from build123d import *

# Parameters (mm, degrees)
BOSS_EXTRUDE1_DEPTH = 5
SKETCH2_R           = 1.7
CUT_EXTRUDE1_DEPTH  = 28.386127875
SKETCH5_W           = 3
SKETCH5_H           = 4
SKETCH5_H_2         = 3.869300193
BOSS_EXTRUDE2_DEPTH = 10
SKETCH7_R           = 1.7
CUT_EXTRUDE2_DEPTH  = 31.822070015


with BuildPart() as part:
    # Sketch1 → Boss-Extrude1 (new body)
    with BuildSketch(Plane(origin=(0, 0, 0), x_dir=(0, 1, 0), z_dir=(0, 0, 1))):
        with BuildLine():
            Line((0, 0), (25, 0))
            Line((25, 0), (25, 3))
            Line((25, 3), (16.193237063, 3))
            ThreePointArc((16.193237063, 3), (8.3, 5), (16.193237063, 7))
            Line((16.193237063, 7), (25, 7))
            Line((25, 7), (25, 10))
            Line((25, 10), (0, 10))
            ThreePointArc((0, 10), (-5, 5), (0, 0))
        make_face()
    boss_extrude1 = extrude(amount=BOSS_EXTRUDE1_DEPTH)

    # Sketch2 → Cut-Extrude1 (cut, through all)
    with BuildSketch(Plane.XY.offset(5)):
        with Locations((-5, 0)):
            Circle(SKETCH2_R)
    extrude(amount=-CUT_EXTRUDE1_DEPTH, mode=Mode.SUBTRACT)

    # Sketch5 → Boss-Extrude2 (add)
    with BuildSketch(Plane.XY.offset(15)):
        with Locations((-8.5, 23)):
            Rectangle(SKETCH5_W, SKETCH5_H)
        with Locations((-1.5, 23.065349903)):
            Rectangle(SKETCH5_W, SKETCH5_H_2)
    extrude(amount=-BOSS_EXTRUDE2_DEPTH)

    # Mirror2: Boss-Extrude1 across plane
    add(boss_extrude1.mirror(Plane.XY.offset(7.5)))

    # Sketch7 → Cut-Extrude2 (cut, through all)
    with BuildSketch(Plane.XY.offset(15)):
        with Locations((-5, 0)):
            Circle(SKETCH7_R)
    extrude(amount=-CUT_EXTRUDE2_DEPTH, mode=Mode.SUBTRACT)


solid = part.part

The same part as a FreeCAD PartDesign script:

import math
import FreeCAD as App
import Part
import Sketcher
from FreeCAD import Vector

doc = App.newDocument("Part")
params = doc.addObject("Spreadsheet::Sheet", "Params")
for row, (alias, value) in enumerate([
    ("sketch1_radius", "5 mm"),
    ("sketch1_radius2", "4.2 mm"),
    ("sketch1_width", "3 mm"),
    ("sketch1_height", "25 mm"),
    ("pad1_length", "5 mm"),
    ("sketch2_diameter", "3.4 mm"),
    ("sketch3_width", "3 mm"),
    ("sketch3_height", "4 mm"),
    ("pad2_length", "10 mm"),
    ("sketch4_diameter", "3.4 mm"),
], start=1):
    params.set(f"A{row}", alias)
    params.set(f"B{row}", "=" + value)
    params.setAlias(f"B{row}", alias)

body = doc.addObject("PartDesign::Body", "Body")

sketch1 = body.newObject("Sketcher::SketchObject", "Sketch")
sketch1.AttachmentSupport = (doc.getObject("XY_Plane"), [""])
sketch1.MapMode = "FlatFace"
sketch1.addGeometry([
    Part.LineSegment(Vector(0, 0, 0), Vector(0, 25, 0)),
    Part.LineSegment(Vector(0, 25, 0), Vector(-3, 25, 0)),
    Part.LineSegment(Vector(-3, 25, 0), Vector(-3, 16.2, 0)),
    Part.ArcOfCircle(Part.Circle(Vector(-5, 12.5, 0), Vector(0, 0, 1), 4.2), math.radians(118), math.radians(422)),
    Part.LineSegment(Vector(-7, 16.2, 0), Vector(-7, 25, 0)),
    Part.LineSegment(Vector(-7, 25, 0), Vector(-10, 25, 0)),
    Part.LineSegment(Vector(-10, 25, 0), Vector(-10, 0, 0)),
    Part.ArcOfCircle(Part.Circle(Vector(-5, 0, 0), Vector(0, 0, 1), 5), math.radians(180), math.radians(360)),
], False)
sketch1.addConstraint([
    Sketcher.Constraint("Coincident", 0, 2, 1, 1),
    Sketcher.Constraint("Coincident", 1, 2, 2, 1),
    Sketcher.Constraint("Coincident", 2, 2, 3, 2),
    Sketcher.Constraint("Coincident", 3, 1, 4, 1),
    Sketcher.Constraint("Coincident", 4, 2, 5, 1),
    Sketcher.Constraint("Coincident", 5, 2, 6, 1),
    Sketcher.Constraint("Tangent", 6, 2, 7, 1),
    Sketcher.Constraint("Tangent", 7, 2, 0, 1),
    Sketcher.Constraint("Vertical", 0),
    Sketcher.Constraint("Horizontal", 1),
    Sketcher.Constraint("Vertical", 2),
    Sketcher.Constraint("Vertical", 4),
    Sketcher.Constraint("Horizontal", 5),
    Sketcher.Constraint("Vertical", 6),
    Sketcher.Constraint("Coincident", 7, 2, -1, 1),
    Sketcher.Constraint("Horizontal", 2, 2, 3, 1),
    Sketcher.Constraint("Horizontal", 1, 2, 4, 2),
    Sketcher.Constraint("Vertical", 3, 3, 7, 3),
    Sketcher.Constraint("Radius", 7, 5.0),
    Sketcher.Constraint("Radius", 3, 4.2),
    Sketcher.Constraint("DistanceX", 1, 2, 1, 1, 3.0),
    Sketcher.Constraint("DistanceY", 0, 1, 0, 2, 25.0),
    Sketcher.Constraint("DistanceY", -1, 1, 3, 3, 12.5),
])
sketch1.setExpression("Constraints[18]", "Params.sketch1_radius")
sketch1.setExpression("Constraints[19]", "Params.sketch1_radius2")
sketch1.setExpression("Constraints[20]", "Params.sketch1_width")
sketch1.setExpression("Constraints[21]", "Params.sketch1_height")
pad1 = body.newObject("PartDesign::Pad", "Pad")
pad1.Profile = sketch1
pad1.setExpression("Length", "Params.pad1_length")

sketch2 = body.newObject("Sketcher::SketchObject", "Sketch001")
sketch2.AttachmentSupport = (doc.getObject("XY_Plane"), [""])
sketch2.MapMode = "FlatFace"
sketch2.AttachmentOffset = App.Placement(Vector(0, 0, 5), App.Rotation())
sketch2.addGeometry(Part.Circle(Vector(-5, 0, 0), Vector(0, 0, 1), 1.7), False)
sketch2.addConstraint([
    Sketcher.Constraint("PointOnObject", 0, 3, -1),
    Sketcher.Constraint("Diameter", 0, 3.4),
    Sketcher.Constraint("DistanceX", 0, 3, -1, 1, 5.0),
])
sketch2.setExpression("Constraints[1]", "Params.sketch2_diameter")
pocket1 = body.newObject("PartDesign::Pocket", "Pocket")
pocket1.Profile = sketch2
pocket1.Type = "ThroughAll"

sketch3 = body.newObject("Sketcher::SketchObject", "Sketch002")
sketch3.AttachmentSupport = (doc.getObject("XY_Plane"), [""])
sketch3.MapMode = "FlatFace"
sketch3.AttachmentOffset = App.Placement(Vector(0, 0, 15), App.Rotation())
sketch3.addGeometry([
    Part.LineSegment(Vector(-10, 25, 0), Vector(-10, 21, 0)),
    Part.LineSegment(Vector(-10, 21, 0), Vector(-7, 21, 0)),
    Part.LineSegment(Vector(-7, 21, 0), Vector(-7, 25, 0)),
    Part.LineSegment(Vector(-7, 25, 0), Vector(-10, 25, 0)),
    Part.LineSegment(Vector(-3, 25, 0), Vector(-3, 21.1, 0)),
    Part.LineSegment(Vector(-3, 21.1, 0), Vector(0, 21.1, 0)),
    Part.LineSegment(Vector(0, 21.1, 0), Vector(0, 25, 0)),
    Part.LineSegment(Vector(0, 25, 0), Vector(-3, 25, 0)),
], False)
sketch3.addConstraint([
    Sketcher.Constraint("Coincident", 0, 2, 1, 1),
    Sketcher.Constraint("Coincident", 1, 2, 2, 1),
    Sketcher.Constraint("Coincident", 2, 2, 3, 1),
    Sketcher.Constraint("Coincident", 3, 2, 0, 1),
    Sketcher.Constraint("Coincident", 4, 2, 5, 1),
    Sketcher.Constraint("Coincident", 5, 2, 6, 1),
    Sketcher.Constraint("Coincident", 6, 2, 7, 1),
    Sketcher.Constraint("Coincident", 7, 2, 4, 1),
    Sketcher.Constraint("Vertical", 0),
    Sketcher.Constraint("Horizontal", 1),
    Sketcher.Constraint("Vertical", 2),
    Sketcher.Constraint("Horizontal", 3),
    Sketcher.Constraint("Vertical", 4),
    Sketcher.Constraint("Horizontal", 5),
    Sketcher.Constraint("Vertical", 6),
    Sketcher.Constraint("Horizontal", 7),
    Sketcher.Constraint("PointOnObject", 5, 2, -2),
    Sketcher.Constraint("Horizontal", 3, 2, 6, 2),
    Sketcher.Constraint("Equal", 3, 5),
    Sketcher.Constraint("DistanceX", 1, 1, 1, 2, 3.0),
    Sketcher.Constraint("DistanceY", 0, 2, 0, 1, 4.0),
    Sketcher.Constraint("DistanceX", 0, 2, -1, 1, 10.0),
    Sketcher.Constraint("DistanceY", -1, 1, 0, 2, 21.0),
    Sketcher.Constraint("DistanceY", 4, 2, 4, 1, 3.8693),
])
sketch3.setExpression("Constraints[19]", "Params.sketch3_width")
sketch3.setExpression("Constraints[20]", "Params.sketch3_height")
pad2 = body.newObject("PartDesign::Pad", "Pad001")
pad2.Profile = sketch3
pad2.setExpression("Length", "Params.pad2_length")
pad2.Reversed = True
doc.recompute()

datumplane = body.newObject("PartDesign::Plane", "DatumPlane")
datumplane.AttachmentSupport = (doc.getObject("XY_Plane"), [""])
datumplane.MapMode = "FlatFace"
datumplane.AttachmentOffset = App.Placement(Vector(0, 0, 7.5), App.Rotation())
mirrored = body.newObject("PartDesign::Mirrored", "Mirrored")
mirrored.Originals = [pad1]
mirrored.MirrorPlane = (datumplane, [""])
body.Tip = mirrored

sketch4 = body.newObject("Sketcher::SketchObject", "Sketch003")
sketch4.AttachmentSupport = (doc.getObject("XY_Plane"), [""])
sketch4.MapMode = "FlatFace"
sketch4.AttachmentOffset = App.Placement(Vector(0, 0, 15), App.Rotation())
sketch4.addGeometry(Part.Circle(Vector(-5, 0, 0), Vector(0, 0, 1), 1.7), False)
sketch4.addConstraint([
    Sketcher.Constraint("PointOnObject", 0, 3, -1),
    Sketcher.Constraint("Diameter", 0, 3.4),
    Sketcher.Constraint("DistanceX", 0, 3, -1, 1, 5.0),
])
sketch4.setExpression("Constraints[1]", "Params.sketch4_diameter")
pocket2 = body.newObject("PartDesign::Pocket", "Pocket001")
pocket2.Profile = sketch4
pocket2.Type = "ThroughAll"

doc.recompute()
